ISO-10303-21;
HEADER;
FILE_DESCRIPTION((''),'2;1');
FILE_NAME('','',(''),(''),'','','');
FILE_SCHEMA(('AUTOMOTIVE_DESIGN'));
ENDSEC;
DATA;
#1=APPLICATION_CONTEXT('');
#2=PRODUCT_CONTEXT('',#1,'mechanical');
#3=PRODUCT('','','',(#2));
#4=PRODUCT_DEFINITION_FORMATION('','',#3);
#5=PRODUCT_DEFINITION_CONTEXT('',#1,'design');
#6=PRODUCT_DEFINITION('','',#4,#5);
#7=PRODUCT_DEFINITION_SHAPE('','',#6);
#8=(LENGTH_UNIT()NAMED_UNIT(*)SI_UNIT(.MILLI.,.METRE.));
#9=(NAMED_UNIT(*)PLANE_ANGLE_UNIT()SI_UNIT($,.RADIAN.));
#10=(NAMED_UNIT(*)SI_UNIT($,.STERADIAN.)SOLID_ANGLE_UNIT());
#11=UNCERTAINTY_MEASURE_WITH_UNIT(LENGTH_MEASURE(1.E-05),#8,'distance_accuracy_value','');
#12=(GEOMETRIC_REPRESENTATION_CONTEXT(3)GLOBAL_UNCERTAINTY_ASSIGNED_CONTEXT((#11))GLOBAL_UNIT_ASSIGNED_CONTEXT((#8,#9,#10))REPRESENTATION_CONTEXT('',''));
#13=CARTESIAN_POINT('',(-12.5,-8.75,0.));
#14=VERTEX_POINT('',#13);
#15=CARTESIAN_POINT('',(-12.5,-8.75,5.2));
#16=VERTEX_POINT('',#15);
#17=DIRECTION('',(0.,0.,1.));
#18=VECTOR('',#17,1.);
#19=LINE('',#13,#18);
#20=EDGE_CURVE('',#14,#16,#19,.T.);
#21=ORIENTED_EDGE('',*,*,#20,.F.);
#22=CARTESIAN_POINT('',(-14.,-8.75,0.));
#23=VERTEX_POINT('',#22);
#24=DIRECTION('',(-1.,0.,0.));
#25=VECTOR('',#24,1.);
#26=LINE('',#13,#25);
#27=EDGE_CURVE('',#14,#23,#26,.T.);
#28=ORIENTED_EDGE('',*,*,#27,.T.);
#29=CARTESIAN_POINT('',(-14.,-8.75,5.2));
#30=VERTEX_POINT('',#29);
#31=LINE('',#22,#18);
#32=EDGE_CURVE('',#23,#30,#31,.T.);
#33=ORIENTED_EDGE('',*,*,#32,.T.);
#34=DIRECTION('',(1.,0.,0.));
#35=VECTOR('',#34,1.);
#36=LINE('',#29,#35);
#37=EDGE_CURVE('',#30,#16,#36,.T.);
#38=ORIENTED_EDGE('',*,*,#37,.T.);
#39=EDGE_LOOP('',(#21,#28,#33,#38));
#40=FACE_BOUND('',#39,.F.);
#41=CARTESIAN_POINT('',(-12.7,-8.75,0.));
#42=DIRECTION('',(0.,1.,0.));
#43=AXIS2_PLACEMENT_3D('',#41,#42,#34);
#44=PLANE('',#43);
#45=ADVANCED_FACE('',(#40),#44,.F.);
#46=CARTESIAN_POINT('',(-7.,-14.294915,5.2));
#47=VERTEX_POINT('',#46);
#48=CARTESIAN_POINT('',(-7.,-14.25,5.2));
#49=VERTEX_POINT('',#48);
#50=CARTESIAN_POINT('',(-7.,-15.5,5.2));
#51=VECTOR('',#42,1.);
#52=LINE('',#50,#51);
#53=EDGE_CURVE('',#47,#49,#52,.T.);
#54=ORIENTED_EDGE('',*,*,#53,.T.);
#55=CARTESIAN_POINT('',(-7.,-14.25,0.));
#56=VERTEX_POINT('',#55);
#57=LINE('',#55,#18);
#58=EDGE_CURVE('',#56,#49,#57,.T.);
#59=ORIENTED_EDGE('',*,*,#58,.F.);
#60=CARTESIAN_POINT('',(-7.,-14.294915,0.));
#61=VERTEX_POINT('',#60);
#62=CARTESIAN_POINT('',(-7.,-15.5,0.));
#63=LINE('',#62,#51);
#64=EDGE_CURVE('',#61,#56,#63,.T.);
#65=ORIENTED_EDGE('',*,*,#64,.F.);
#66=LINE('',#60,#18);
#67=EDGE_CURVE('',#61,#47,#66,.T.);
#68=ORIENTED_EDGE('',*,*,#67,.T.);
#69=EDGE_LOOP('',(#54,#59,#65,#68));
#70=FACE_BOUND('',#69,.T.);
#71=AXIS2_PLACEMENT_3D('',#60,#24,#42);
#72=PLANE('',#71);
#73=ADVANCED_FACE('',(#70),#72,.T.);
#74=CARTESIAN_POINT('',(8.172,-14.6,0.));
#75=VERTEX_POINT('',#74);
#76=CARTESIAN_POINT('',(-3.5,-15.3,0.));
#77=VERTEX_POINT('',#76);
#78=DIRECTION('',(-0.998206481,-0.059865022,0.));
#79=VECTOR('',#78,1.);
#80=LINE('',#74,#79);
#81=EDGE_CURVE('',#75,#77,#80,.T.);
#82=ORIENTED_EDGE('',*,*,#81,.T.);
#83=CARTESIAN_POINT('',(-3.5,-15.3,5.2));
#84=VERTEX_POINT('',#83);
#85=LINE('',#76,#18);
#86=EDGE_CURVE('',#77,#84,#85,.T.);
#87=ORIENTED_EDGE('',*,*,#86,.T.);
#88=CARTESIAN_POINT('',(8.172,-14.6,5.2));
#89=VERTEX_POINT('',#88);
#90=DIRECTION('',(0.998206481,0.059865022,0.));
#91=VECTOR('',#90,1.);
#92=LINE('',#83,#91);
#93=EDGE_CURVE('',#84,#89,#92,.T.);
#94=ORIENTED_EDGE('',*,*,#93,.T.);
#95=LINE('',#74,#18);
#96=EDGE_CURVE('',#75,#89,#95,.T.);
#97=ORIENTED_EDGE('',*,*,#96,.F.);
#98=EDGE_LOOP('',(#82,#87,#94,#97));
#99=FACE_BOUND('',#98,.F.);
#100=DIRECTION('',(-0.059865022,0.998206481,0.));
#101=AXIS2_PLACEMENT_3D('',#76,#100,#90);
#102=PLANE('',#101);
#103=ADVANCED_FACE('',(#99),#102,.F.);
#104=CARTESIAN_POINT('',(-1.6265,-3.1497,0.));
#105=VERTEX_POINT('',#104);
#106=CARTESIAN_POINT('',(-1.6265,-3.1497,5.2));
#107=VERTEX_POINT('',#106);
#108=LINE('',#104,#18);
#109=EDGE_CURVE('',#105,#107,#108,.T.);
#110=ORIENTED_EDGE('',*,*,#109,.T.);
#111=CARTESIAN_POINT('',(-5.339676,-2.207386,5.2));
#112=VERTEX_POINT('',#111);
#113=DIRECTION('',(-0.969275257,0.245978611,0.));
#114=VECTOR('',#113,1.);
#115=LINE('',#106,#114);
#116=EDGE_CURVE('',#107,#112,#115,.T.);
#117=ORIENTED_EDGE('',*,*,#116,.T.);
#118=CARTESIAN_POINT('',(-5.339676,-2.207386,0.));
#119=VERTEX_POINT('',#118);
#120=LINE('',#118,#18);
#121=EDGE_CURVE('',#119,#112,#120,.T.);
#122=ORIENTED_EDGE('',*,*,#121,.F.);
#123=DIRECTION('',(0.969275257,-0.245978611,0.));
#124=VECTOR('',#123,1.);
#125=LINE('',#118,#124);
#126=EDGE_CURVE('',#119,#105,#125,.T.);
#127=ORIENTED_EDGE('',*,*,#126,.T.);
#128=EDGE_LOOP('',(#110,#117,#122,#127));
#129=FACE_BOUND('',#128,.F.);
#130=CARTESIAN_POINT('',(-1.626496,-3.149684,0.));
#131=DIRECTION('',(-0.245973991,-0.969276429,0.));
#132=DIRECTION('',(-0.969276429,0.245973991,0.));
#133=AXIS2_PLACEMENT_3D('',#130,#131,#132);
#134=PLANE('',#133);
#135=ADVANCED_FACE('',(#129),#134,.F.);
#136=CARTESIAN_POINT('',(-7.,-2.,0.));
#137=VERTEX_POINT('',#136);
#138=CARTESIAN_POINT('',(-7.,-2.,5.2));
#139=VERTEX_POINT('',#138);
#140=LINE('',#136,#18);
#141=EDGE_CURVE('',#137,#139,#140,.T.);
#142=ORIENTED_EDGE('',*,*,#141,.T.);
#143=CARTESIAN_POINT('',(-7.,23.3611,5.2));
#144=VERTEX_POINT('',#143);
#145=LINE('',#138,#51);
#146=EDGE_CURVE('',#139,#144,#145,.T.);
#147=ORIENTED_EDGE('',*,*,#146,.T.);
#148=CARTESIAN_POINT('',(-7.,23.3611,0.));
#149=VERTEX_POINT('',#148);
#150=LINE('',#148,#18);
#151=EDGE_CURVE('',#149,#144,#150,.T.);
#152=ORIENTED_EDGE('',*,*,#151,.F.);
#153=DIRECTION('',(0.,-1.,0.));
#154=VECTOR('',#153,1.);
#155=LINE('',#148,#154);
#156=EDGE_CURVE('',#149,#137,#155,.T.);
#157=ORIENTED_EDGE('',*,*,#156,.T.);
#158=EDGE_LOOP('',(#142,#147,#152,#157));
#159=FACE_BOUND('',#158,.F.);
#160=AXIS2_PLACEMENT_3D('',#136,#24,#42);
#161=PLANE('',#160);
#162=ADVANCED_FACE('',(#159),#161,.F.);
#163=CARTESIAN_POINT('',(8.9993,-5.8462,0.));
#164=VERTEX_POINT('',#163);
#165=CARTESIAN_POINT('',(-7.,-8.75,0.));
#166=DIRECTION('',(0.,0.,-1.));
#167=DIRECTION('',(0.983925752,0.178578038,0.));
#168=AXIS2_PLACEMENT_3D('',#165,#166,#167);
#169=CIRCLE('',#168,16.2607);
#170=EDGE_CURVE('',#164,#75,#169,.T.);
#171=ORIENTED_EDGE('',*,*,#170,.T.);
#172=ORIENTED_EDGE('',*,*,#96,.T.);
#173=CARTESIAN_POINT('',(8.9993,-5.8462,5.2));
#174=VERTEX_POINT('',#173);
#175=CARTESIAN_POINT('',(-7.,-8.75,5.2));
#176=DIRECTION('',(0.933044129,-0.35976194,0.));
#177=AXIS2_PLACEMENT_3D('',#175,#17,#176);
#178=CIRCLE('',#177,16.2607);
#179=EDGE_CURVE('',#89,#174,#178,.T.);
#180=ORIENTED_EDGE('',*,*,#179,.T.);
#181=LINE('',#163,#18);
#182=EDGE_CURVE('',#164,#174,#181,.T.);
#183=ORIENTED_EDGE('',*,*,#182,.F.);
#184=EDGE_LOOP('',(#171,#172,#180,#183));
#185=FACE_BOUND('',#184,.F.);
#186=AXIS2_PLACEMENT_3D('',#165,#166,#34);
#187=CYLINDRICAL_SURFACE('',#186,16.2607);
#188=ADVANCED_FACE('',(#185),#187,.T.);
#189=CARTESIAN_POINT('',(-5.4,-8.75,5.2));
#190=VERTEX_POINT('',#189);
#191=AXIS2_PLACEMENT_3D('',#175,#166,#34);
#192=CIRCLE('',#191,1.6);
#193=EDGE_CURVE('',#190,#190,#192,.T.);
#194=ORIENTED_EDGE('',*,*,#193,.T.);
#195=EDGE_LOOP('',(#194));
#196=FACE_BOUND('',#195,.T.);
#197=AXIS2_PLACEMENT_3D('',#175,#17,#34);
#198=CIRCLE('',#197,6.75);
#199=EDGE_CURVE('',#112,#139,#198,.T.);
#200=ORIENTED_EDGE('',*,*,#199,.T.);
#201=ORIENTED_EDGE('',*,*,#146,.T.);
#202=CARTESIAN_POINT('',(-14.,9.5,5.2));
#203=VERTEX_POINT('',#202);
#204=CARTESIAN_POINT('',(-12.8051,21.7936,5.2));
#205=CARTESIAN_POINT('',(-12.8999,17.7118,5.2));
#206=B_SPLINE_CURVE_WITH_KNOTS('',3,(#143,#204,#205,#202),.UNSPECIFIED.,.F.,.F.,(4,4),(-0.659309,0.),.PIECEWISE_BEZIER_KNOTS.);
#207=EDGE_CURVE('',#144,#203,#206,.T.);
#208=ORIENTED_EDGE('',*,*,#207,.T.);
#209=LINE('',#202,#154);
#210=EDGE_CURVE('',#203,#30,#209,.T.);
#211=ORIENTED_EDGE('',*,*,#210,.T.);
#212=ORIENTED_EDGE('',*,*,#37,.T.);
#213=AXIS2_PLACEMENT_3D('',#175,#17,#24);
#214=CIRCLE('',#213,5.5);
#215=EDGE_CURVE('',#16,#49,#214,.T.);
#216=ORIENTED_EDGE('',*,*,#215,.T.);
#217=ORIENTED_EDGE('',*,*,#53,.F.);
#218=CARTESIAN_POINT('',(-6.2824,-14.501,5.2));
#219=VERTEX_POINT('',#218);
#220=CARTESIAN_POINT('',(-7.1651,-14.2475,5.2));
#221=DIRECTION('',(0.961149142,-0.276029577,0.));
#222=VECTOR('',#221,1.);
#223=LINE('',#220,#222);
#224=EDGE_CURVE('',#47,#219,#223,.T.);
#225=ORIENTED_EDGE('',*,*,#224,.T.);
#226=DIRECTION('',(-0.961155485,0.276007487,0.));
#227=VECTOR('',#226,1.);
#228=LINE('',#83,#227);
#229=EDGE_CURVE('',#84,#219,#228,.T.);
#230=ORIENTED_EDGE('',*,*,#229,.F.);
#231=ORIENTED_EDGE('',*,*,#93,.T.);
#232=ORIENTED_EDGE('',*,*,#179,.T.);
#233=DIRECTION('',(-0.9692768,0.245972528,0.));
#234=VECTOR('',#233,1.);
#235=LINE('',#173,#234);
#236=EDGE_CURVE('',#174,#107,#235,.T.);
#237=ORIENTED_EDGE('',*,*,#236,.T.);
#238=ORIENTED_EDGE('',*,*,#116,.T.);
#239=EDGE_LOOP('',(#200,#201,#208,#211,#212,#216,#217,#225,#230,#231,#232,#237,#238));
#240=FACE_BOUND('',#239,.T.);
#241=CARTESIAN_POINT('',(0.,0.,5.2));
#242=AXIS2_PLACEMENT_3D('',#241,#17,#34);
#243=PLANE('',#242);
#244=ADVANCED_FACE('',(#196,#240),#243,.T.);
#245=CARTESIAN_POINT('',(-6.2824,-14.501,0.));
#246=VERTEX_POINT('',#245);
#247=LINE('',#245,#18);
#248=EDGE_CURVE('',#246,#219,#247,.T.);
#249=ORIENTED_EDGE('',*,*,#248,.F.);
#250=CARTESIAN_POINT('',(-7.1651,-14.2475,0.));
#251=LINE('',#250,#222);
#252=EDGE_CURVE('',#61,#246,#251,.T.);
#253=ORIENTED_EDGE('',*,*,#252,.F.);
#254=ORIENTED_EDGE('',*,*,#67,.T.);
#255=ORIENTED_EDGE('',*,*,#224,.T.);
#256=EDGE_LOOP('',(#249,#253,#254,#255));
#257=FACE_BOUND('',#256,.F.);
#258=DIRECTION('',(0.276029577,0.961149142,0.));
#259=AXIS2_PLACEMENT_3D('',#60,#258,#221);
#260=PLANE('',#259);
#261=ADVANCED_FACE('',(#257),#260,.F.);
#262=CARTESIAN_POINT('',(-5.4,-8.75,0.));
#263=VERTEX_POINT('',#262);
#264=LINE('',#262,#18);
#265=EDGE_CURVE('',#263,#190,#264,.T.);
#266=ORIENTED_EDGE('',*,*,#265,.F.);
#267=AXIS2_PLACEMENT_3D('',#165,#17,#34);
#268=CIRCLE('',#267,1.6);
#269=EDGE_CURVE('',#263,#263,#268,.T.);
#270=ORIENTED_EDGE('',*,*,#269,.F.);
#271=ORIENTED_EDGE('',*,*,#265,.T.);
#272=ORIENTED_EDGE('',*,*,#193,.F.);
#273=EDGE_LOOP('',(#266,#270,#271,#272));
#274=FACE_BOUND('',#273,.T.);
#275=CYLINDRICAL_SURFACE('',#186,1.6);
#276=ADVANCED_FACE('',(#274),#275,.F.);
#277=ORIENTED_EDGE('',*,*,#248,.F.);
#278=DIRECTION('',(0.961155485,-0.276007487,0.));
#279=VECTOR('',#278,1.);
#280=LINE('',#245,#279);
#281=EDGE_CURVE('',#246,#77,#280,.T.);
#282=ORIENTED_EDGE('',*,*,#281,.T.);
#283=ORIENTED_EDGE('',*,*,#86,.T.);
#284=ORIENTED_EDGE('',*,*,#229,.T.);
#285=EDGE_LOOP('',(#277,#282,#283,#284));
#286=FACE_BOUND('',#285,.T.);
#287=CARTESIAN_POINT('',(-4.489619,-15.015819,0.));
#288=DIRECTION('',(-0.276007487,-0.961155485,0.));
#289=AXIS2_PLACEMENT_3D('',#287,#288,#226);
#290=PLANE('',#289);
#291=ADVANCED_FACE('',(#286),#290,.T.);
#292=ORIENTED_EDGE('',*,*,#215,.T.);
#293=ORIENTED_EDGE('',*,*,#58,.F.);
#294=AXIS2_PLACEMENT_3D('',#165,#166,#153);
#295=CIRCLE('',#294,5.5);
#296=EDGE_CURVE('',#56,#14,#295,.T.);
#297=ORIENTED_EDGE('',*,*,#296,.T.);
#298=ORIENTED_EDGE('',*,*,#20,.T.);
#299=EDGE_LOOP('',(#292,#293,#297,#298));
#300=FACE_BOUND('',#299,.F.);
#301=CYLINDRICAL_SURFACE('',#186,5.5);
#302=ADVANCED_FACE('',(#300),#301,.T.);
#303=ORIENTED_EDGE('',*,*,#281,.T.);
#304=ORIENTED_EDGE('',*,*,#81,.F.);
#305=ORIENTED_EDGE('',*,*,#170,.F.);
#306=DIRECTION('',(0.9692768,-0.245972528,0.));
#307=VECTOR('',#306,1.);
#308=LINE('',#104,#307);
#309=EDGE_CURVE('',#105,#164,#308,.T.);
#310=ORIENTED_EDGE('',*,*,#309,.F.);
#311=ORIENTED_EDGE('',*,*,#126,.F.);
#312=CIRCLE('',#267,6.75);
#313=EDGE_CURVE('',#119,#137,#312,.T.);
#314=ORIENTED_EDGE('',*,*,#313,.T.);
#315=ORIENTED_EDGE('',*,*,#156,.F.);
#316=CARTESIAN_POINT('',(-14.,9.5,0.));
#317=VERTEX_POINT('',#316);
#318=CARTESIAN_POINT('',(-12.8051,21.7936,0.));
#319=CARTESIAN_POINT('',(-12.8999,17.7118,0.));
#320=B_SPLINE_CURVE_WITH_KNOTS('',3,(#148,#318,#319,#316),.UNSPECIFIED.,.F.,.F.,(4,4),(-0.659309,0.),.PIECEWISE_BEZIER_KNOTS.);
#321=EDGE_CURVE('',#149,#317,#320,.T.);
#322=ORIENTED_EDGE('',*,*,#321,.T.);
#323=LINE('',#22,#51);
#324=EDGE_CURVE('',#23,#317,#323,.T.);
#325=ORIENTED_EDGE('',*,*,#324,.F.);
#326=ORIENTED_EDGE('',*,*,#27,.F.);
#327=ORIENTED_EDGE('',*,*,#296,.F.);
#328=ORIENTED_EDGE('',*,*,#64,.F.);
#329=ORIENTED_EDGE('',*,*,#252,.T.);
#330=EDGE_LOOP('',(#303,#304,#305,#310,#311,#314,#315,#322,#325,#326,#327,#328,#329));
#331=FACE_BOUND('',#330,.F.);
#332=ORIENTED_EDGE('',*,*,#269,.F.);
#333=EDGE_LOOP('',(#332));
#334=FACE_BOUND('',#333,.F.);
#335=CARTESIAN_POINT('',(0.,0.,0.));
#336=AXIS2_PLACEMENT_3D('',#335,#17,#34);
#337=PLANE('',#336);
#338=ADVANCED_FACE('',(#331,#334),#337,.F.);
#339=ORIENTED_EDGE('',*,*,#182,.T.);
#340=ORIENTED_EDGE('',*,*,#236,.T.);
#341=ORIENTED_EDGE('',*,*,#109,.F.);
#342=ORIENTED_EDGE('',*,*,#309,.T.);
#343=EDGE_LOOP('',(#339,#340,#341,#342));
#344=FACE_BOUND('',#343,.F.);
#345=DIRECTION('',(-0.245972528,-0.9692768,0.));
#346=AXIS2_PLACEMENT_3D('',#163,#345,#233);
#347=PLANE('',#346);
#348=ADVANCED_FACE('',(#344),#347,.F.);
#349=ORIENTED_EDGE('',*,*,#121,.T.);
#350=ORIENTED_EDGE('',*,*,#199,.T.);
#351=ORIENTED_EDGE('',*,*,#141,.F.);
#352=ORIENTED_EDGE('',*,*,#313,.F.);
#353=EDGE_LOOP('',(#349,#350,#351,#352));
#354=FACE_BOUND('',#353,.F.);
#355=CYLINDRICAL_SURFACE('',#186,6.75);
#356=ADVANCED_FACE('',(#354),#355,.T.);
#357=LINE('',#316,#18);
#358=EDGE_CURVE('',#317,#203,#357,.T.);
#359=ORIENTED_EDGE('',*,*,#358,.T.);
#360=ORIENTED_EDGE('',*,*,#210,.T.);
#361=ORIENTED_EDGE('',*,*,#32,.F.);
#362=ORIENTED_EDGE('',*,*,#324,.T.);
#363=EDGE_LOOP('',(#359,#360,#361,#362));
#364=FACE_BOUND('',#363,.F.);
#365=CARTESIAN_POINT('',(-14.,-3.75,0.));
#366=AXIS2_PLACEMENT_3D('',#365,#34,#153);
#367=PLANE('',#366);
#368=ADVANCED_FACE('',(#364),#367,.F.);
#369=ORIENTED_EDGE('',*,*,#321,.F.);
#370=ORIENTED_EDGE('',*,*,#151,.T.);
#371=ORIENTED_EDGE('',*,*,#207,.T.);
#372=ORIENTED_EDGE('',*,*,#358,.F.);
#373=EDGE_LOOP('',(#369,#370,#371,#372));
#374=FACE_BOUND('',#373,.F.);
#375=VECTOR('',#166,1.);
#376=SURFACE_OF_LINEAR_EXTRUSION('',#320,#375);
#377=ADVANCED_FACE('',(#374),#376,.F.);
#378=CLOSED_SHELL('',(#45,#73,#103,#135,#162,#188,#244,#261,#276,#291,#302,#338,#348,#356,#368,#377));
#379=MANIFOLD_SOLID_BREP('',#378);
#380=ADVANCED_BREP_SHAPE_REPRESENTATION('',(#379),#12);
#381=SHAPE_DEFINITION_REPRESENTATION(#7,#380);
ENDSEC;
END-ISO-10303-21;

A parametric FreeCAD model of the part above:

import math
import FreeCAD as App
import Part
import Sketcher
Q = App.Units.Quantity

doc = App.newDocument("Part")
body = doc.addObject("PartDesign::Body", "Body")

sketch1 = body.newObject("Sketcher::SketchObject", "Sketch")
sketch1.AttachmentSupport = (doc.getObject("XY_Plane"), [""])
sketch1.MapMode = "FlatFace"
sketch1.addGeometry(Part.LineSegment(App.Vector(-6.2824, -14.501, 0), App.Vector(-3.5, -15.3, 0)), False)
sketch1.addGeometry(Part.LineSegment(App.Vector(-3.5, -15.3, 0), App.Vector(8.172, -14.6, 0)), False)
sketch1.addGeometry(Part.ArcOfCircle(Part.Circle(App.Vector(-7, -8.75, 0), App.Vector(0, 0, 1), 16.2607), math.radians(-21.085577), math.radians(10.286945)), False)
sketch1.addGeometry(Part.LineSegment(App.Vector(8.9993, -5.8462, 0), App.Vector(-1.6265, -3.1497, 0)), False)
sketch1.addGeometry(Part.LineSegment(App.Vector(-1.6265, -3.1497, 0), App.Vector(-5.339676, -2.207386, 0)), False)
sketch1.addGeometry(Part.ArcOfCircle(Part.Circle(App.Vector(-7, -8.75, 0), App.Vector(0, 0, 1), 6.75), math.radians(75.760599), math.radians(90)), False)
sketch1.addGeometry(Part.LineSegment(App.Vector(-7, -2, 0), App.Vector(-7, 23.3611, 0)), False)
sketch1.addGeometry(Part.BSplineCurve([App.Vector(-7, 23.3611, 0), App.Vector(-12.8051, 21.7936, 0), App.Vector(-12.8999, 17.7118, 0), App.Vector(-14, 9.5, 0)], [4, 4], [-0.659309, 0], False, 3, [1, 1, 1, 1], False), False)
sketch1.addGeometry(Part.LineSegment(App.Vector(-14, 9.5, 0), App.Vector(-14, -8.75, 0)), False)
sketch1.addGeometry(Part.LineSegment(App.Vector(-14, -8.75, 0), App.Vector(-12.5, -8.75, 0)), False)
sketch1.addGeometry(Part.ArcOfCircle(Part.Circle(App.Vector(-7, -8.75, 0), App.Vector(0, 0, 1), 5.5), math.radians(180), math.radians(270)), False)
sketch1.addGeometry(Part.LineSegment(App.Vector(-7, -14.25, 0), App.Vector(-7, -14.294915, 0)), False)
sketch1.addGeometry(Part.LineSegment(App.Vector(-7, -14.294915, 0), App.Vector(-6.2824, -14.501, 0)), False)
sketch1.addGeometry(Part.Circle(App.Vector(-7, -8.75, 0), App.Vector(0, 0, 1), 1.6), False)
sketch1.addConstraint(Sketcher.Constraint("Block", 7))
sketch1.addConstraint(Sketcher.Constraint("Coincident", 0, 2, 1, 1))
sketch1.addConstraint(Sketcher.Constraint("Coincident", 1, 2, 2, 1))
sketch1.addConstraint(Sketcher.Constraint("Coincident", 2, 2, 3, 1))
sketch1.addConstraint(Sketcher.Constraint("Coincident", 3, 2, 4, 1))
sketch1.addConstraint(Sketcher.Constraint("Tangent", 4, 2, 5, 1))
sketch1.addConstraint(Sketcher.Constraint("Coincident", 5, 2, 6, 1))
sketch1.addConstraint(Sketcher.Constraint("Coincident", 6, 2, 7, 1))
sketch1.addConstraint(Sketcher.Constraint("Coincident", 7, 2, 8, 1))
sketch1.addConstraint(Sketcher.Constraint("Coincident", 8, 2, 9, 1))
sketch1.addConstraint(Sketcher.Constraint("Coincident", 9, 2, 10, 1))
sketch1.addConstraint(Sketcher.Constraint("Coincident", 10, 2, 11, 1))
sketch1.addConstraint(Sketcher.Constraint("Coincident", 11, 2, 12, 1))
sketch1.addConstraint(Sketcher.Constraint("Coincident", 12, 2, 0, 1))
sketch1.addConstraint(Sketcher.Constraint("Vertical", 6))
sketch1.addConstraint(Sketcher.Constraint("Vertical", 8))
sketch1.addConstraint(Sketcher.Constraint("Horizontal", 9))
sketch1.addConstraint(Sketcher.Constraint("Vertical", 11))
sketch1.addConstraint(Sketcher.Constraint("Coincident", 5, 3, 2, 3))
sketch1.addConstraint(Sketcher.Constraint("Coincident", 10, 3, 2, 3))
sketch1.addConstraint(Sketcher.Constraint("Coincident", 13, 3, 2, 3))
sketch1.addConstraint(Sketcher.Constraint("Parallel", 3, 4))
sketch1.addConstraint(Sketcher.Constraint("Parallel", 0, 12))
sketch1.addConstraint(Sketcher.Constraint("Horizontal", 13, 3, 8, 2))
sketch1.addConstraint(Sketcher.Constraint("Vertical", 13, 3, 5, 2))
sketch1.addConstraint(Sketcher.Constraint("Vertical", 6, 2, 10, 2))
sketch1.addConstraint(Sketcher.Constraint("Diameter", 13, 3.2))
sketch1.addConstraint(Sketcher.Constraint("Radius", 10, 5.5))
sketch1.addConstraint(Sketcher.Constraint("Radius", 5, 6.75))
sketch1.addConstraint(Sketcher.Constraint("DistanceY", 5, 2, -1, 1, 2.0))
sketch1.addConstraint(Sketcher.Constraint("DistanceX", 0, 2, -1, 1, 3.5))
sketch1.addConstraint(Sketcher.Constraint("DistanceY", 0, 2, -1, 1, 15.3))
sketch1.addConstraint(Sketcher.Constraint("DistanceY", 1, 2, -1, 1, 14.6))
sketch1.addConstraint(Sketcher.Constraint("Angle", 3, Q("165.7607 deg")))
sketch1.addConstraint(Sketcher.Constraint("Radius", 2, 16.2607))
sketch1.addConstraint(Sketcher.Constraint("DistanceY", 11, 2, 11, 1, 0.045))
sketch1.addConstraint(Sketcher.Constraint("DistanceY", 12, 2, -1, 1, 14.501))
sketch1.addConstraint(Sketcher.Constraint("Distance", 3, 10.9626))
pad1 = body.newObject("PartDesign::Pad", "Pad")
pad1.Profile = sketch1
pad1.Length = 5.2

doc.recompute()
